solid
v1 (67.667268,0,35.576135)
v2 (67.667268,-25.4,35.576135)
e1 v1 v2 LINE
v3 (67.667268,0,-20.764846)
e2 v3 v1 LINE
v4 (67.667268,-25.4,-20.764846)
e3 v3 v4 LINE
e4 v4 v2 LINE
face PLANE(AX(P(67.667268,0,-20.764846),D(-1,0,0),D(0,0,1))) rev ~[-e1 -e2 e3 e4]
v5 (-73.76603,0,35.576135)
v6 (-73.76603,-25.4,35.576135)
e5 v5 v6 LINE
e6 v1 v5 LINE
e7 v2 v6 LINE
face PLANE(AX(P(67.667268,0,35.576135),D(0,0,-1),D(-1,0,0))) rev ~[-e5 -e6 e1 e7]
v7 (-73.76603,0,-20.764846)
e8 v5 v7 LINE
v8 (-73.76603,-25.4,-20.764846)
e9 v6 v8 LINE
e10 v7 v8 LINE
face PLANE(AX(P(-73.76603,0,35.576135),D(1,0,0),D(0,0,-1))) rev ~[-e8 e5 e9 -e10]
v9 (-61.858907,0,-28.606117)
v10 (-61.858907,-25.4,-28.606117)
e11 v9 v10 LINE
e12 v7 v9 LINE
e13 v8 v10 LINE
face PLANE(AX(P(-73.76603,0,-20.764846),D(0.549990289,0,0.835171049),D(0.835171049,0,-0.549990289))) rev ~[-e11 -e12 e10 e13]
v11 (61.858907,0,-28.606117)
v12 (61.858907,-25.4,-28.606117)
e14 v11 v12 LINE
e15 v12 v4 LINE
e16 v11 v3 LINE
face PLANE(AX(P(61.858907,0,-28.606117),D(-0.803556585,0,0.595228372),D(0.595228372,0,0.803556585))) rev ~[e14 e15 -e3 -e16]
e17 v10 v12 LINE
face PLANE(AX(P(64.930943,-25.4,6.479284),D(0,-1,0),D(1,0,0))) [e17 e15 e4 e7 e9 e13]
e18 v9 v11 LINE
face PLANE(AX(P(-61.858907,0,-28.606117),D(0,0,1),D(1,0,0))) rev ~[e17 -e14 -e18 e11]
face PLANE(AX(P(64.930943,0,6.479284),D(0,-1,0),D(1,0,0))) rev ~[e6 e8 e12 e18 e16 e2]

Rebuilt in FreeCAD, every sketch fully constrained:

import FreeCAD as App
import Part
import Sketcher

V = App.Vector


def add_polygon(sketch, points):
    """Adds a closed chain of lines whose ends are joined by coincident constraints."""
    first, n = sketch.GeometryCount, len(points)
    for a, b in zip(points, points[1:] + points[:1]):
        sketch.addGeometry(Part.LineSegment(App.Vector(*a, 0), App.Vector(*b, 0)), False)
    for i in range(n):
        sketch.addConstraint(Sketcher.Constraint("Coincident", first + i, 2, first + (i + 1) % n, 1))

doc = App.newDocument("Part")
params = doc.addObject("Spreadsheet::Sheet", "Params")
for row, (alias, value) in enumerate([
    ("pad1_length", "1 in"),
], start=1):
    params.set(f"A{row}", alias)
    params.set(f"B{row}", "=" + value)
    params.setAlias(f"B{row}", alias)

body = doc.addObject("PartDesign::Body", "Body")

sketch1 = doc.addObject("Sketcher::SketchObject", "Sketch")
body.addObject(sketch1)
sketch1.AttachmentSupport = (doc.XZ_Plane, [""])
sketch1.MapMode = "FlatFace"
add_polygon(sketch1, [(-74, 36), (-74, -21), (-62, -29), (62, -29), (68, -21), (68, 36)])
sketch1.addConstraint([
    Sketcher.Constraint("Vertical", 0),
    Sketcher.Constraint("Horizontal", 2),
    Sketcher.Constraint("Vertical", 4),
    Sketcher.Constraint("Horizontal", 5),
    Sketcher.Constraint("Horizontal", 0, 2, 3, 2),
    Sketcher.Constraint("DistanceX", 5, 2, 5, 1, 141.433299),
    Sketcher.Constraint("DistanceY", 0, 2, 0, 1, 56.340981),
    Sketcher.Constraint("DistanceX", 2, 1, 2, 2, 123.717815),
    Sketcher.Constraint("DistanceX", 0, 2, -1, 1, 73.76603),
    Sketcher.Constraint("DistanceY", 1, 2, 0, 2, 7.84127),
    Sketcher.Constraint("DistanceX", 2, 2, 3, 2, 5.808361),
    Sketcher.Constraint("DistanceY", 0, 2, -1, 1, 20.764846),
])
pad1 = doc.addObject("PartDesign::Pad", "Pad")
body.addObject(pad1)
pad1.Profile = sketch1
pad1.setExpression("Length", "Params.pad1_length")

doc.recompute()
